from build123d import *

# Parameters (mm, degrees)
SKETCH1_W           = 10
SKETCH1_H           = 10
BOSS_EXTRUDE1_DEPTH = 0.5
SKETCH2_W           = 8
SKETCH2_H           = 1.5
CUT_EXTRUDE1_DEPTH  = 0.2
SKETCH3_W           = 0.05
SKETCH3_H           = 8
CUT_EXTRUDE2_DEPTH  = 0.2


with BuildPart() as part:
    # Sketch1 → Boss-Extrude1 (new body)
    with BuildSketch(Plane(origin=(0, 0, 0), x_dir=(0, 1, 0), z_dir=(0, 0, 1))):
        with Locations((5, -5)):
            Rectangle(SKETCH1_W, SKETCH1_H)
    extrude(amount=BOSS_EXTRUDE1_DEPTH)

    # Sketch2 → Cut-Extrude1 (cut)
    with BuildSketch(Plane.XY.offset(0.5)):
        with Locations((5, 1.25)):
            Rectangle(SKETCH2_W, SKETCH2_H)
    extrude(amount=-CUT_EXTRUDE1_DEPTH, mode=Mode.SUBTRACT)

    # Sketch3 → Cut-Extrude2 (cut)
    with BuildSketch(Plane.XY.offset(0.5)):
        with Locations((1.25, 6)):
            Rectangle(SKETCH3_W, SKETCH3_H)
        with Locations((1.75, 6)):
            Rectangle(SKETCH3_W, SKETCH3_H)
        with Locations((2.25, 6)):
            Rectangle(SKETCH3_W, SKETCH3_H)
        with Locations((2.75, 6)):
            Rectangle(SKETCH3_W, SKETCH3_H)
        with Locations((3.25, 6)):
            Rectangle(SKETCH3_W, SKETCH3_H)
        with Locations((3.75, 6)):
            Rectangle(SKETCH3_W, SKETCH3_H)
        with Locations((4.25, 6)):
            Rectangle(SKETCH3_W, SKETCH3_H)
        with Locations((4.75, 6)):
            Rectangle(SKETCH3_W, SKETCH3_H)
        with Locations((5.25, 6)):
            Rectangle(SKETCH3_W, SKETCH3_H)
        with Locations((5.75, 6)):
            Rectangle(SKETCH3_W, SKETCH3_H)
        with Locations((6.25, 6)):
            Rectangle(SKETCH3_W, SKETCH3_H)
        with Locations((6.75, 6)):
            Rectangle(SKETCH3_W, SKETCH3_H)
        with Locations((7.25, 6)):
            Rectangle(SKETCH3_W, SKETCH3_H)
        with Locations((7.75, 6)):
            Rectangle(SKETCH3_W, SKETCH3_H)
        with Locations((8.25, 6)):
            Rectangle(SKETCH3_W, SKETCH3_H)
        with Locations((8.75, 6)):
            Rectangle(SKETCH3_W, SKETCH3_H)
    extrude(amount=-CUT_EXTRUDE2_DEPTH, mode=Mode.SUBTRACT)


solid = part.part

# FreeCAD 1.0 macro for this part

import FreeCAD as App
import Part
import Sketcher

V = App.Vector
Q = App.Units.Quantity


def add_polygon(sketch, points):
    """Adds a closed chain of lines whose ends are joined by coincident constraints."""
    first, n = sketch.GeometryCount, len(points)
    for a, b in zip(points, points[1:] + points[:1]):
        sketch.addGeometry(Part.LineSegment(App.Vector(*a, 0), App.Vector(*b, 0)), False)
    for i in range(n):
        sketch.addConstraint(Sketcher.Constraint("Coincident", first + i, 2, first + (i + 1) % n, 1))

doc = App.newDocument("Part")
body = doc.addObject("PartDesign::Body", "Body")

sketch1 = doc.addObject("Sketcher::SketchObject", "Sketch")
body.addObject(sketch1)
sketch1.AttachmentSupport = (doc.XY_Plane, [""])
sketch1.MapMode = "FlatFace"
add_polygon(sketch1, [(0, 0), (10, 0), (10, 10), (0, 10)])
sketch1.addConstraint(Sketcher.Constraint("Horizontal", 0))
sketch1.addConstraint(Sketcher.Constraint("Vertical", 1))
sketch1.addConstraint(Sketcher.Constraint("Horizontal", 2))
sketch1.addConstraint(Sketcher.Constraint("Vertical", 3))
sketch1.addConstraint(Sketcher.Constraint("Coincident", 3, 2, -1, 1))
sketch1.addConstraint(Sketcher.Constraint("Equal", 2, 1))
sketch1.addConstraint(Sketcher.Constraint("DistanceX", 0, 1, 0, 2, Q("10 mm")))
pad1 = doc.addObject("PartDesign::Pad", "Pad")
body.addObject(pad1)
pad1.Profile = sketch1
pad1.Length = 0.5

sketch2 = doc.addObject("Sketcher::SketchObject", "Sketch001")
body.addObject(sketch2)
sketch2.AttachmentSupport = (doc.XY_Plane, [""])
sketch2.MapMode = "FlatFace"
sketch2.AttachmentOffset = App.Placement(V(0, 0, 0.5), App.Rotation())
add_polygon(sketch2, [(1, 2), (1, 0.5), (9, 0.5), (9, 2)])
sketch2.addConstraint(Sketcher.Constraint("Vertical", 0))
sketch2.addConstraint(Sketcher.Constraint("Horizontal", 1))
sketch2.addConstraint(Sketcher.Constraint("Vertical", 2))
sketch2.addConstraint(Sketcher.Constraint("Horizontal", 3))
sketch2.addConstraint(Sketcher.Constraint("DistanceX", 1, 1, 1, 2, Q("8 mm")))
sketch2.addConstraint(Sketcher.Constraint("DistanceY", 0, 2, 0, 1, Q("1.5 mm")))
sketch2.addConstraint(Sketcher.Constraint("DistanceX", -1, 1, 0, 2, Q("1 mm")))
sketch2.addConstraint(Sketcher.Constraint("DistanceY", -1, 1, 2, 2, Q("2 mm")))
pocket1 = doc.addObject("PartDesign::Pocket", "Pocket")
body.addObject(pocket1)
pocket1.Profile = sketch2
pocket1.Length = 0.2

sketch3 = doc.addObject("Sketcher::SketchObject", "Sketch002")
body.addObject(sketch3)
sketch3.AttachmentSupport = (doc.XY_Plane, [""])
sketch3.MapMode = "FlatFace"
sketch3.AttachmentOffset = App.Placement(V(0, 0, 0.5), App.Rotation())
add_polygon(sketch3, [(1.225, 10), (1.225, 2), (1.275, 2), (1.275, 10)])
add_polygon(sketch3, [(1.725, 10), (1.725, 2), (1.775, 2), (1.775, 10)])
add_polygon(sketch3, [(2.225, 10), (2.225, 2), (2.275, 2), (2.275, 10)])
add_polygon(sketch3, [(2.725, 10), (2.725, 2), (2.775, 2), (2.775, 10)])
add_polygon(sketch3, [(3.225, 10), (3.225, 2), (3.275, 2), (3.275, 10)])
add_polygon(sketch3, [(3.725, 10), (3.725, 2), (3.775, 2), (3.775, 10)])
add_polygon(sketch3, [(4.225, 10), (4.225, 2), (4.275, 2), (4.275, 10)])
add_polygon(sketch3, [(4.725, 10), (4.725, 2), (4.775, 2), (4.775, 10)])
add_polygon(sketch3, [(5.225, 10), (5.225, 2), (5.275, 2), (5.275, 10)])
add_polygon(sketch3, [(5.725, 10), (5.725, 2), (5.775, 2), (5.775, 10)])
add_polygon(sketch3, [(6.225, 10), (6.225, 2), (6.275, 2), (6.275, 10)])
add_polygon(sketch3, [(6.725, 10), (6.725, 2), (6.775, 2), (6.775, 10)])
add_polygon(sketch3, [(7.225, 10), (7.225, 2), (7.275, 2), (7.275, 10)])
add_polygon(sketch3, [(7.725, 10), (7.725, 2), (7.775, 2), (7.775, 10)])
add_polygon(sketch3, [(8.225, 10), (8.225, 2), (8.275, 2), (8.275, 10)])
add_polygon(sketch3, [(8.725, 10), (8.725, 2), (8.775, 2), (8.775, 10)])
sketch3.addConstraint(Sketcher.Constraint("Vertical", 0))
sketch3.addConstraint(Sketcher.Constraint("Horizontal", 1))
sketch3.addConstraint(Sketcher.Constraint("Vertical", 2))
sketch3.addConstraint(Sketcher.Constraint("Horizontal", 3))
sketch3.addConstraint(Sketcher.Constraint("Vertical", 4))
sketch3.addConstraint(Sketcher.Constraint("Horizontal", 5))
sketch3.addConstraint(Sketcher.Constraint("Vertical", 6))
sketch3.addConstraint(Sketcher.Constraint("Horizontal", 7))
sketch3.addConstraint(Sketcher.Constraint("Vertical", 8))
sketch3.addConstraint(Sketcher.Constraint("Horizontal", 9))
sketch3.addConstraint(Sketcher.Constraint("Vertical", 10))
sketch3.addConstraint(Sketcher.Constraint("Horizontal", 11))
sketch3.addConstraint(Sketcher.Constraint("Vertical", 12))
sketch3.addConstraint(Sketcher.Constraint("Horizontal", 13))
sketch3.addConstraint(Sketcher.Constraint("Vertical", 14))
sketch3.addConstraint(Sketcher.Constraint("Horizontal", 15))
sketch3.addConstraint(Sketcher.Constraint("Vertical", 16))
sketch3.addConstraint(Sketcher.Constraint("Horizontal", 17))
sketch3.addConstraint(Sketcher.Constraint("Vertical", 18))
sketch3.addConstraint(Sketcher.Constraint("Horizontal", 19))
sketch3.addConstraint(Sketcher.Constraint("Vertical", 20))
sketch3.addConstraint(Sketcher.Constraint("Horizontal", 21))
sketch3.addConstraint(Sketcher.Constraint("Vertical", 22))
sketch3.addConstraint(Sketcher.Constraint("Horizontal", 23))
sketch3.addConstraint(Sketcher.Constraint("Vertical", 24))
sketch3.addConstraint(Sketcher.Constraint("Horizontal", 25))
sketch3.addConstraint(Sketcher.Constraint("Vertical", 26))
sketch3.addConstraint(Sketcher.Constraint("Horizontal", 27))
sketch3.addConstraint(Sketcher.Constraint("Vertical", 28))
sketch3.addConstraint(Sketcher.Constraint("Horizontal", 29))
sketch3.addConstraint(Sketcher.Constraint("Vertical", 30))
sketch3.addConstraint(Sketcher.Constraint("Horizontal", 31))
sketch3.addConstraint(Sketcher.Constraint("Vertical", 32))
sketch3.addConstraint(Sketcher.Constraint("Horizontal", 33))
sketch3.addConstraint(Sketcher.Constraint("Vertical", 34))
sketch3.addConstraint(Sketcher.Constraint("Horizontal", 35))
sketch3.addConstraint(Sketcher.Constraint("Vertical", 36))
sketch3.addConstraint(Sketcher.Constraint("Horizontal", 37))
sketch3.addConstraint(Sketcher.Constraint("Vertical", 38))
sketch3.addConstraint(Sketcher.Constraint("Horizontal", 39))
sketch3.addConstraint(Sketcher.Constraint("Vertical", 40))
sketch3.addConstraint(Sketcher.Constraint("Horizontal", 41))
sketch3.addConstraint(Sketcher.Constraint("Vertical", 42))
sketch3.addConstraint(Sketcher.Constraint("Horizontal", 43))
sketch3.addConstraint(Sketcher.Constraint("Vertical", 44))
sketch3.addConstraint(Sketcher.Constraint("Horizontal", 45))
sketch3.addConstraint(Sketcher.Constraint("Vertical", 46))
sketch3.addConstraint(Sketcher.Constraint("Horizontal", 47))
sketch3.addConstraint(Sketcher.Constraint("Vertical", 48))
sketch3.addConstraint(Sketcher.Constraint("Horizontal", 49))
sketch3.addConstraint(Sketcher.Constraint("Vertical", 50))
sketch3.addConstraint(Sketcher.Constraint("Horizontal", 51))
sketch3.addConstraint(Sketcher.Constraint("Vertical", 52))
sketch3.addConstraint(Sketcher.Constraint("Horizontal", 53))
sketch3.addConstraint(Sketcher.Constraint("Vertical", 54))
sketch3.addConstraint(Sketcher.Constraint("Horizontal", 55))
sketch3.addConstraint(Sketcher.Constraint("Vertical", 56))
sketch3.addConstraint(Sketcher.Constraint("Horizontal", 57))
sketch3.addConstraint(Sketcher.Constraint("Vertical", 58))
sketch3.addConstraint(Sketcher.Constraint("Horizontal", 59))
sketch3.addConstraint(Sketcher.Constraint("Vertical", 60))
sketch3.addConstraint(Sketcher.Constraint("Horizontal", 61))
sketch3.addConstraint(Sketcher.Constraint("Vertical", 62))
sketch3.addConstraint(Sketcher.Constraint("Horizontal", 63))
sketch3.addConstraint(Sketcher.Constraint("Horizontal", 1, 2, 4, 2))
sketch3.addConstraint(Sketcher.Constraint("Horizontal", 3, 2, 6, 2))
sketch3.addConstraint(Sketcher.Constraint("Horizontal", 5, 2, 8, 2))
sketch3.addConstraint(Sketcher.Constraint("Horizontal", 7, 2, 10, 2))
sketch3.addConstraint(Sketcher.Constraint("Horizontal", 9, 2, 12, 2))
sketch3.addConstraint(Sketcher.Constraint("Horizontal", 11, 2, 14, 2))
sketch3.addConstraint(Sketcher.Constraint("Horizontal", 13, 2, 16, 2))
sketch3.addConstraint(Sketcher.Constraint("Horizontal", 15, 2, 18, 2))
sketch3.addConstraint(Sketcher.Constraint("Horizontal", 17, 2, 20, 2))
sketch3.addConstraint(Sketcher.Constraint("Horizontal", 19, 2, 22, 2))
sketch3.addConstraint(Sketcher.Constraint("Horizontal", 21, 2, 24, 2))
sketch3.addConstraint(Sketcher.Constraint("Horizontal", 23, 2, 26, 2))
sketch3.addConstraint(Sketcher.Constraint("Horizontal", 25, 2, 28, 2))
sketch3.addConstraint(Sketcher.Constraint("Horizontal", 27, 2, 30, 2))
sketch3.addConstraint(Sketcher.Constraint("Horizontal", 29, 2, 32, 2))
sketch3.addConstraint(Sketcher.Constraint("Horizontal", 31, 2, 34, 2))
sketch3.addConstraint(Sketcher.Constraint("Horizontal", 33, 2, 36, 2))
sketch3.addConstraint(Sketcher.Constraint("Horizontal", 35, 2, 38, 2))
sketch3.addConstraint(Sketcher.Constraint("Horizontal", 37, 2, 40, 2))
sketch3.addConstraint(Sketcher.Constraint("Horizontal", 39, 2, 42, 2))
sketch3.addConstraint(Sketcher.Constraint("Horizontal", 41, 2, 44, 2))
sketch3.addConstraint(Sketcher.Constraint("Horizontal", 43, 2, 46, 2))
sketch3.addConstraint(Sketcher.Constraint("Horizontal", 45, 2, 48, 2))
sketch3.addConstraint(Sketcher.Constraint("Horizontal", 47, 2, 50, 2))
sketch3.addConstraint(Sketcher.Constraint("Horizontal", 49, 2, 52, 2))
sketch3.addConstraint(Sketcher.Constraint("Horizontal", 51, 2, 54, 2))
sketch3.addConstraint(Sketcher.Constraint("Horizontal", 53, 2, 56, 2))
sketch3.addConstraint(Sketcher.Constraint("Horizontal", 55, 2, 58, 2))
sketch3.addConstraint(Sketcher.Constraint("Horizontal", 57, 2, 60, 2))
sketch3.addConstraint(Sketcher.Constraint("Horizontal", 59, 2, 62, 2))
sketch3.addConstraint(Sketcher.Constraint("Equal", 3, 5))
sketch3.addConstraint(Sketcher.Constraint("Equal", 7, 9))
sketch3.addConstraint(Sketcher.Constraint("Equal", 11, 13))
sketch3.addConstraint(Sketcher.Constraint("Equal", 15, 17))
sketch3.addConstraint(Sketcher.Constraint("Equal", 19, 21))
sketch3.addConstraint(Sketcher.Constraint("Equal", 23, 25))
sketch3.addConstraint(Sketcher.Constraint("Equal", 27, 29))
sketch3.addConstraint(Sketcher.Constraint("Equal", 31, 33))
sketch3.addConstraint(Sketcher.Constraint("Equal", 35, 37))
sketch3.addConstraint(Sketcher.Constraint("Equal", 39, 41))
sketch3.addConstraint(Sketcher.Constraint("Equal", 43, 45))
sketch3.addConstraint(Sketcher.Constraint("Equal", 47, 49))
sketch3.addConstraint(Sketcher.Constraint("Equal", 51, 53))
sketch3.addConstraint(Sketcher.Constraint("Equal", 55, 57))
sketch3.addConstraint(Sketcher.Constraint("Equal", 59, 61))
sketch3.addConstraint(Sketcher.Constraint("DistanceY", 0, 2, 0, 1, Q("8 mm")))
sketch3.addConstraint(Sketcher.Constraint("DistanceY", -1, 1, 0, 2, Q("2 mm")))
sketch3.addConstraint(Sketcher.Constraint("DistanceX", 1, 1, 1, 2, Q("0.05 mm")))
sketch3.addConstraint(Sketcher.Constraint("DistanceX", -1, 1, 0, 2, Q("1.225 mm")))
sketch3.addConstraint(Sketcher.Constraint("DistanceX", -1, 1, 4, 2, Q("1.725 mm")))
sketch3.addConstraint(Sketcher.Constraint("DistanceX", -1, 1, 8, 2, Q("2.225 mm")))
sketch3.addConstraint(Sketcher.Constraint("DistanceX", -1, 1, 12, 2, Q("2.725 mm")))
sketch3.addConstraint(Sketcher.Constraint("DistanceX", -1, 1, 16, 2, Q("3.225 mm")))
sketch3.addConstraint(Sketcher.Constraint("DistanceX", -1, 1, 20, 2, Q("3.725 mm")))
sketch3.addConstraint(Sketcher.Constraint("DistanceX", -1, 1, 24, 2, Q("4.225 mm")))
sketch3.addConstraint(Sketcher.Constraint("DistanceX", -1, 1, 28, 2, Q("4.725 mm")))
sketch3.addConstraint(Sketcher.Constraint("DistanceX", -1, 1, 32, 2, Q("5.225 mm")))
sketch3.addConstraint(Sketcher.Constraint("DistanceX", -1, 1, 36, 2, Q("5.725 mm")))
sketch3.addConstraint(Sketcher.Constraint("DistanceX", -1, 1, 40, 2, Q("6.225 mm")))
sketch3.addConstraint(Sketcher.Constraint("DistanceX", -1, 1, 44, 2, Q("6.725 mm")))
sketch3.addConstraint(Sketcher.Constraint("DistanceX", -1, 1, 48, 2, Q("7.225 mm")))
sketch3.addConstraint(Sketcher.Constraint("DistanceX", -1, 1, 52, 2, Q("7.725 mm")))
sketch3.addConstraint(Sketcher.Constraint("DistanceX", -1, 1, 56, 2, Q("8.225 mm")))
sketch3.addConstraint(Sketcher.Constraint("DistanceX", -1, 1, 60, 2, Q("8.725 mm")))
pocket2 = doc.addObject("PartDesign::Pocket", "Pocket001")
body.addObject(pocket2)
pocket2.Profile = sketch3
pocket2.Length = 0.2

doc.recompute()
